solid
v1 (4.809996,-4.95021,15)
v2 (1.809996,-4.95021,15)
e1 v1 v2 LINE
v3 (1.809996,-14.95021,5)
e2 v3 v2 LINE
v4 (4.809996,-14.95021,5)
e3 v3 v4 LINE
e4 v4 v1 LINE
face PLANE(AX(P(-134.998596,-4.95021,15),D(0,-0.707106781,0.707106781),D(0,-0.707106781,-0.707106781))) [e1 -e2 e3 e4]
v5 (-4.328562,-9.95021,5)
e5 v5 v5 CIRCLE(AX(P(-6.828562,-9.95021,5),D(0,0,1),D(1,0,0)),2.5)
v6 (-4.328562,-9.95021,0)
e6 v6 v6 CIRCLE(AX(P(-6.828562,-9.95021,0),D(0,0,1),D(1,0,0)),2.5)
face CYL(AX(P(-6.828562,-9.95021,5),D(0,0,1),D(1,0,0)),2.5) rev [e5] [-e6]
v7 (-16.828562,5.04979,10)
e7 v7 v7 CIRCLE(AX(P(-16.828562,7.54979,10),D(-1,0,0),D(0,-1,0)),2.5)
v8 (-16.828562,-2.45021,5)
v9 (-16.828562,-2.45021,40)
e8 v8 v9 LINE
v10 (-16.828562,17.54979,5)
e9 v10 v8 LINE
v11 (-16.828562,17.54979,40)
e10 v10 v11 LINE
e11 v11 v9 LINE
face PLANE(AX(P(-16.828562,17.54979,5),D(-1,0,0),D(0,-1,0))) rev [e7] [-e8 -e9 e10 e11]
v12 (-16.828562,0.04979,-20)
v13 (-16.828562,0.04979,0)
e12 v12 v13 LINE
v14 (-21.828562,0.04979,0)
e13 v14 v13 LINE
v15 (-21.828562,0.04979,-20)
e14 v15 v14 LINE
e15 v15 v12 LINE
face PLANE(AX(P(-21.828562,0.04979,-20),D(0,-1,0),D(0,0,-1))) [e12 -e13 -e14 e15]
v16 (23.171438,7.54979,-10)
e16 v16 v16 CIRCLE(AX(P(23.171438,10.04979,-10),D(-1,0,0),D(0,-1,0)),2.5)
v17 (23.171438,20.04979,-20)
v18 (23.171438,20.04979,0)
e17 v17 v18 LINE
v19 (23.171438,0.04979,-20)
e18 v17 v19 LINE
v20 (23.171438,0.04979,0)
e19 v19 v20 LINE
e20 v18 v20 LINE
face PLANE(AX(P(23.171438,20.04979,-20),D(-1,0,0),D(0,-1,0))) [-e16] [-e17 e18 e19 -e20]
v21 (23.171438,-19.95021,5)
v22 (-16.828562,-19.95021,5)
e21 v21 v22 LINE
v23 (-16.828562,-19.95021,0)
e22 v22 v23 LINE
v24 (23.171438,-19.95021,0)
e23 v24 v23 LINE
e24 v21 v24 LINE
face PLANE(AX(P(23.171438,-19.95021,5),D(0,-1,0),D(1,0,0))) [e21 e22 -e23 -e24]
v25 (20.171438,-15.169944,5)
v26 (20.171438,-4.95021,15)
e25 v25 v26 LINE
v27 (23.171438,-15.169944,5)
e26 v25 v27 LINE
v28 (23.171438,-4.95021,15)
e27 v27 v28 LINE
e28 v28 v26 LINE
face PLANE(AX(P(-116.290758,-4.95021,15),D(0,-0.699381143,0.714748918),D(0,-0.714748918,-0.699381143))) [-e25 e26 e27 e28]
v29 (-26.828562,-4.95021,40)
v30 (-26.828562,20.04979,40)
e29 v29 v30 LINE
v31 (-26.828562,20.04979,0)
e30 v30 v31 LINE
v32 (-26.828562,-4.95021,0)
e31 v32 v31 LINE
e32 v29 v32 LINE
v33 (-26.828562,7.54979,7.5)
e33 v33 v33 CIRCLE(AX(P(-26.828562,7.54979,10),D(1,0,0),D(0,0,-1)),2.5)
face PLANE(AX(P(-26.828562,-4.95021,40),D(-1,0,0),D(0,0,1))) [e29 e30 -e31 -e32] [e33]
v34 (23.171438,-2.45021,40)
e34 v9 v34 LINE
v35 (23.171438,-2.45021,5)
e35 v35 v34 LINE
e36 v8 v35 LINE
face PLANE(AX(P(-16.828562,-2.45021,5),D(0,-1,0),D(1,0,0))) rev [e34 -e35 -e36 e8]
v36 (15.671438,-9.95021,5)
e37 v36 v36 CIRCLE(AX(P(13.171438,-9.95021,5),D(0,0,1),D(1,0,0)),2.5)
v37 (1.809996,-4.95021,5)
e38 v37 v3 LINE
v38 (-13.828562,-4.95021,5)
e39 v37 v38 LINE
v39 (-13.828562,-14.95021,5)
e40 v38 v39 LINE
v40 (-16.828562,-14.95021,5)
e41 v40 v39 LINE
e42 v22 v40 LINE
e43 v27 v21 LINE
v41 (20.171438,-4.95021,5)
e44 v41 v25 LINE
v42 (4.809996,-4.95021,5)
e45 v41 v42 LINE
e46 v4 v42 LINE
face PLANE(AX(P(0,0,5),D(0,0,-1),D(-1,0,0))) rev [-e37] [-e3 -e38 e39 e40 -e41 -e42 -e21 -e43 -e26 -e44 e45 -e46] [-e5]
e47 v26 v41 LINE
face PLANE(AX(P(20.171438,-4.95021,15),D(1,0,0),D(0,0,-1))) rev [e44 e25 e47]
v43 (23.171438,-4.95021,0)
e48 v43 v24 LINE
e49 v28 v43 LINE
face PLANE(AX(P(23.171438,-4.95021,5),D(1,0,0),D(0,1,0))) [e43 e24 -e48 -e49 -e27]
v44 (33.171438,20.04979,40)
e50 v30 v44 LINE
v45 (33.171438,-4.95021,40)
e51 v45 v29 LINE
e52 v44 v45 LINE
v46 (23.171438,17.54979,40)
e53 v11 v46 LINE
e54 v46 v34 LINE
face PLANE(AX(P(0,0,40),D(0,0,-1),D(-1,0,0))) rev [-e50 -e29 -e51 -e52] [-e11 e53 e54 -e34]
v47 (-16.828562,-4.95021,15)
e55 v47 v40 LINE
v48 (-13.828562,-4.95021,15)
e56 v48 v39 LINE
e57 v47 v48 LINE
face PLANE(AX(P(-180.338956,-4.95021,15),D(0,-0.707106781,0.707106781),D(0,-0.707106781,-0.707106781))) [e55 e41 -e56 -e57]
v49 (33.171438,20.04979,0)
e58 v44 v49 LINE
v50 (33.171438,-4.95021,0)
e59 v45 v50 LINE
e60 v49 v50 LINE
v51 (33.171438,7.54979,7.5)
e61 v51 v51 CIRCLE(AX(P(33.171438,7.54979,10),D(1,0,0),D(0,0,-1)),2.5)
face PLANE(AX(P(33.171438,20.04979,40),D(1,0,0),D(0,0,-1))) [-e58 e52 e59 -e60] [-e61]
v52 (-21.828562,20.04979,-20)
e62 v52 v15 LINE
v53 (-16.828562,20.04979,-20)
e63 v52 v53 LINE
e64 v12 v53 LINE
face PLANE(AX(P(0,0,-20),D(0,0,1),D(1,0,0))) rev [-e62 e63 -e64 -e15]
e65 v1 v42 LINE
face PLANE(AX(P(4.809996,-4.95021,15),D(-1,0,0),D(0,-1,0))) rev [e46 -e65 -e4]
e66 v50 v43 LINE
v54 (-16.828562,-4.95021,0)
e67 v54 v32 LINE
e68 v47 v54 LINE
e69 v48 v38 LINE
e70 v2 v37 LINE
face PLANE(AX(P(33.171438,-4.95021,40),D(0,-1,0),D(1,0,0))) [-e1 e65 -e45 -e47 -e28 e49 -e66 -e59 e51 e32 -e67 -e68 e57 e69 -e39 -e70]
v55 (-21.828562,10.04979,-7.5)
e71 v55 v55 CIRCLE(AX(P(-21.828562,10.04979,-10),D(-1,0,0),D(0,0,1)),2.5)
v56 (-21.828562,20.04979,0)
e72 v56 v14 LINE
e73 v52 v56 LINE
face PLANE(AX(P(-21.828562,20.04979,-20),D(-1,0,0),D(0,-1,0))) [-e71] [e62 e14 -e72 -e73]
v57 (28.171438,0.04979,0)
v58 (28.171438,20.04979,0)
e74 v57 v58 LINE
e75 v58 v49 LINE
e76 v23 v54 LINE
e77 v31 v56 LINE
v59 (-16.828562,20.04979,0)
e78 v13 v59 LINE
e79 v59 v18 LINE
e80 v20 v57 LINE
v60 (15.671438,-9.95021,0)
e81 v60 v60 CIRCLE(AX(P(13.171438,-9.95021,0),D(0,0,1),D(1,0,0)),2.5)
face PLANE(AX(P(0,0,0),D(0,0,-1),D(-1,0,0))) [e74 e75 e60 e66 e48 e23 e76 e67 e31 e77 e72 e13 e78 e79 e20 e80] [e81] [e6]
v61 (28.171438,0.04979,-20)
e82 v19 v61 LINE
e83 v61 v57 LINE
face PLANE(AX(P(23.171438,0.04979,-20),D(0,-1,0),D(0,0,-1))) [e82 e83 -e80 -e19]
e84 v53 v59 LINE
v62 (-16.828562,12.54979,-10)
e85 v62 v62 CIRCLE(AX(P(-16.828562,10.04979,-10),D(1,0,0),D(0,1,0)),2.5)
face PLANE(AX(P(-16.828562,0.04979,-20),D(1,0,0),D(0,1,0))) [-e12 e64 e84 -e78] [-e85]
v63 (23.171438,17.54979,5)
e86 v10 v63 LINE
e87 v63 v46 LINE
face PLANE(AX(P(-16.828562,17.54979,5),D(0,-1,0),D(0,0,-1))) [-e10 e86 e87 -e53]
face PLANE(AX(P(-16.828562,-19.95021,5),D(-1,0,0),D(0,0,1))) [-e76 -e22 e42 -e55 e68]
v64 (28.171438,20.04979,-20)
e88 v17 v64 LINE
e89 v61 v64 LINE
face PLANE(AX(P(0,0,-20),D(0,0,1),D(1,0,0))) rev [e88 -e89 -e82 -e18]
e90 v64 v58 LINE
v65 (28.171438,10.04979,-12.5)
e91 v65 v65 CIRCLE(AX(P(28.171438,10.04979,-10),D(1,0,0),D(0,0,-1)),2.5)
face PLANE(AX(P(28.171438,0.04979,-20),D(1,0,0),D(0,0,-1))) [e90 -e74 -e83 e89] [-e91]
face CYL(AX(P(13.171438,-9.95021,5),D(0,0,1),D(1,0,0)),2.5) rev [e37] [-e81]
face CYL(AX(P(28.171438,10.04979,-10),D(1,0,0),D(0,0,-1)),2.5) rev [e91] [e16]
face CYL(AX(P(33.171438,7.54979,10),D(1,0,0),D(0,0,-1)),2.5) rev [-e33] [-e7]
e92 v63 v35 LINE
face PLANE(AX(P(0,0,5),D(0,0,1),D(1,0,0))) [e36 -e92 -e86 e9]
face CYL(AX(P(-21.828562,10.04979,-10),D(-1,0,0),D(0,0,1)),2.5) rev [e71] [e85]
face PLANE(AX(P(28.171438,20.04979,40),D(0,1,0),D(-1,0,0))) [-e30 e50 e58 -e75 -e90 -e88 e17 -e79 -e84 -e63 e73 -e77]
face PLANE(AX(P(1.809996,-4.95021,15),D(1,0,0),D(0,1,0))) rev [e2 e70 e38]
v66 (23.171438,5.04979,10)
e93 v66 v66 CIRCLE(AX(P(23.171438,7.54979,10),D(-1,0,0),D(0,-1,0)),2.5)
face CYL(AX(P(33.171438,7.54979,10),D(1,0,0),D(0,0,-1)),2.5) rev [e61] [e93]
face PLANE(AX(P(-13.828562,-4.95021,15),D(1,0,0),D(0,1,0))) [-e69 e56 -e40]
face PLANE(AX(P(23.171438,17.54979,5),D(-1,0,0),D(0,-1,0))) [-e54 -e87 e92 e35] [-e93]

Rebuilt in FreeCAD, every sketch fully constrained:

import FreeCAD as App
import Part
import Sketcher
from FreeCAD import Vector
Q = App.Units.Quantity


def add_polygon(sketch, points):
    """Adds a closed chain of lines whose ends are joined by coincident constraints."""
    first, n = sketch.GeometryCount, len(points)
    for a, b in zip(points, points[1:] + points[:1]):
        sketch.addGeometry(Part.LineSegment(App.Vector(*a, 0), App.Vector(*b, 0)), False)
    for i in range(n):
        sketch.addConstraint(Sketcher.Constraint("Coincident", first + i, 2, first + (i + 1) % n, 1))

doc = App.newDocument("Part")
body = doc.addObject("PartDesign::Body", "Body")

sketch1 = body.newObject("Sketcher::SketchObject", "Sketch")
sketch1.AttachmentSupport = (doc.getObject("XY_Plane"), [""])
sketch1.MapMode = "FlatFace"
add_polygon(sketch1, [(-17, -5), (-17, -20), (23, -20), (23, -5)])
sketch1.addConstraint(Sketcher.Constraint("Vertical", 0))
sketch1.addConstraint(Sketcher.Constraint("Horizontal", 1))
sketch1.addConstraint(Sketcher.Constraint("Vertical", 2))
sketch1.addConstraint(Sketcher.Constraint("Horizontal", 3))
sketch1.addConstraint(Sketcher.Constraint("DistanceX", 1, 1, 1, 2, Q("40 mm")))
sketch1.addConstraint(Sketcher.Constraint("DistanceY", 0, 2, 0, 1, Q("15 mm")))
sketch1.addConstraint(Sketcher.Constraint("DistanceY", 0, 2, -1, 1, Q("19.95021 mm")))
sketch1.addConstraint(Sketcher.Constraint("DistanceX", 0, 2, -1, 1, Q("16.828562 mm")))
pad1 = body.newObject("PartDesign::Pad", "Pad")
pad1.Profile = sketch1
pad1.Length = 5

sketch2 = body.newObject("Sketcher::SketchObject", "Sketch001")
sketch2.AttachmentSupport = (doc.getObject("XY_Plane"), [""])
sketch2.MapMode = "FlatFace"
sketch2.AttachmentOffset = App.Placement(Vector(0, 0, 5), App.Rotation())
sketch2.addGeometry(Part.Circle(Vector(13.2, -10, 0), Vector(0, 0, 1), 2.5), False)
sketch2.addConstraint(Sketcher.Constraint("Diameter", 0, Q("5 mm")))
sketch2.addConstraint(Sketcher.Constraint("DistanceY", 0, 3, -1, 1, Q("9.95021 mm")))
sketch2.addConstraint(Sketcher.Constraint("DistanceX", -1, 1, 0, 3, Q("13.171438 mm")))
doc.recompute()
hole = body.newObject("PartDesign::Hole", "Hole")
hole.Profile = sketch2
hole.ThreadType = "None"
hole.Diameter = 5
hole.DepthType = "ThroughAll"

sketch3 = body.newObject("Sketcher::SketchObject", "Sketch002")
sketch3.AttachmentSupport = (doc.getObject("XY_Plane"), [""])
sketch3.MapMode = "FlatFace"
sketch3.AttachmentOffset = App.Placement(Vector(0, 0, 5), App.Rotation())
sketch3.addGeometry(Part.Circle(Vector(-6.8, -10, 0), Vector(0, 0, 1), 2.5), False)
sketch3.addConstraint(Sketcher.Constraint("Diameter", 0, Q("5 mm")))
sketch3.addConstraint(Sketcher.Constraint("DistanceY", 0, 3, -1, 1, Q("9.95021 mm")))
sketch3.addConstraint(Sketcher.Constraint("DistanceX", 0, 3, -1, 1, Q("6.828562 mm")))
doc.recompute()
hole2 = body.newObject("PartDesign::Hole", "Hole001")
hole2.Profile = sketch3
hole2.ThreadType = "None"
hole2.Diameter = 5
hole2.DepthType = "ThroughAll"

sketch4 = body.newObject("Sketcher::SketchObject", "Sketch003")
sketch4.AttachmentSupport = (doc.getObject("XY_Plane"), [""])
sketch4.MapMode = "FlatFace"
add_polygon(sketch4, [(33, 20), (-27, 20), (-27, -5), (33, -5)])
sketch4.addConstraint(Sketcher.Constraint("Horizontal", 0))
sketch4.addConstraint(Sketcher.Constraint("Vertical", 1))
sketch4.addConstraint(Sketcher.Constraint("Horizontal", 2))
sketch4.addConstraint(Sketcher.Constraint("Vertical", 3))
sketch4.addConstraint(Sketcher.Constraint("DistanceX", 0, 2, 0, 1, Q("60 mm")))
sketch4.addConstraint(Sketcher.Constraint("DistanceY", 1, 2, 1, 1, Q("25 mm")))
sketch4.addConstraint(Sketcher.Constraint("DistanceY", -1, 1, 0, 2, Q("20.04979 mm")))
sketch4.addConstraint(Sketcher.Constraint("DistanceX", 0, 2, -1, 1, Q("26.828562 mm")))
pad2 = body.newObject("PartDesign::Pad", "Pad001")
pad2.Profile = sketch4
pad2.Length = 40

sketch5 = body.newObject("Sketcher::SketchObject", "Sketch004")
sketch5.AttachmentSupport = (doc.getObject("XY_Plane"), [""])
sketch5.MapMode = "FlatFace"
add_polygon(sketch5, [(23, 20), (23, 0), (28, 0), (28, 20)])
sketch5.addConstraint(Sketcher.Constraint("Vertical", 0))
sketch5.addConstraint(Sketcher.Constraint("Horizontal", 1))
sketch5.addConstraint(Sketcher.Constraint("Vertical", 2))
sketch5.addConstraint(Sketcher.Constraint("Horizontal", 3))
sketch5.addConstraint(Sketcher.Constraint("DistanceX", 1, 1, 1, 2, Q("5 mm")))
sketch5.addConstraint(Sketcher.Constraint("DistanceY", 0, 2, 0, 1, Q("20 mm")))
sketch5.addConstraint(Sketcher.Constraint("DistanceY", -1, 1, 0, 2, Q("0.04979 mm")))
sketch5.addConstraint(Sketcher.Constraint("DistanceX", -1, 1, 0, 2, Q("23.171438 mm")))
pad3 = body.newObject("PartDesign::Pad", "Pad002")
pad3.Profile = sketch5
pad3.Length = 20
pad3.Reversed = True

sketch6 = body.newObject("Sketcher::SketchObject", "Sketch005")
sketch6.AttachmentSupport = (doc.getObject("XY_Plane"), [""])
sketch6.MapMode = "FlatFace"
add_polygon(sketch6, [(-22, 20), (-22, 0), (-17, 0), (-17, 20)])
sketch6.addConstraint(Sketcher.Constraint("Vertical", 0))
sketch6.addConstraint(Sketcher.Constraint("Horizontal", 1))
sketch6.addConstraint(Sketcher.Constraint("Vertical", 2))
sketch6.addConstraint(Sketcher.Constraint("Horizontal", 3))
sketch6.addConstraint(Sketcher.Constraint("DistanceX", 1, 1, 1, 2, Q("5 mm")))
sketch6.addConstraint(Sketcher.Constraint("DistanceY", 0, 2, 0, 1, Q("20 mm")))
sketch6.addConstraint(Sketcher.Constraint("DistanceY", -1, 1, 0, 2, Q("0.04979 mm")))
sketch6.addConstraint(Sketcher.Constraint("DistanceX", 0, 2, -1, 1, Q("21.828562 mm")))
pad4 = body.newObject("PartDesign::Pad", "Pad003")
pad4.Profile = sketch6
pad4.Length = 20
pad4.Reversed = True

sketch7 = body.newObject("Sketcher::SketchObject", "Sketch006")
sketch7.AttachmentSupport = (doc.getObject("YZ_Plane"), [""])
sketch7.MapMode = "FlatFace"
sketch7.AttachmentOffset = App.Placement(Vector(0, 0, 28.171438), App.Rotation())
sketch7.addGeometry(Part.Circle(Vector(10, -10, 0), Vector(0, 0, 1), 2.5), False)
sketch7.addConstraint(Sketcher.Constraint("Diameter", 0, Q("5 mm")))
sketch7.addConstraint(Sketcher.Constraint("DistanceY", 0, 3, -1, 1, Q("10 mm")))
sketch7.addConstraint(Sketcher.Constraint("DistanceX", -1, 1, 0, 3, Q("10.04979 mm")))
doc.recompute()
hole3 = body.newObject("PartDesign::Hole", "Hole002")
hole3.Profile = sketch7
hole3.ThreadType = "None"
hole3.Diameter = 5
hole3.DepthType = "Dimension"
hole3.Depth = 5
hole3.DrillPoint = "Flat"

sketch8 = body.newObject("Sketcher::SketchObject", "Sketch007")
sketch8.AttachmentSupport = (doc.getObject("YZ_Plane"), [""])
sketch8.MapMode = "FlatFace"
sketch8.AttachmentOffset = App.Placement(Vector(0, 0, -21.828562), App.Rotation())
sketch8.addGeometry(Part.Circle(Vector(10, -10, 0), Vector(0, 0, 1), 2.5), False)
sketch8.addConstraint(Sketcher.Constraint("Diameter", 0, Q("5 mm")))
sketch8.addConstraint(Sketcher.Constraint("DistanceY", 0, 3, -1, 1, Q("10 mm")))
sketch8.addConstraint(Sketcher.Constraint("DistanceX", -1, 1, 0, 3, Q("10.04979 mm")))
doc.recompute()
hole4 = body.newObject("PartDesign::Hole", "Hole003")
hole4.Profile = sketch8
hole4.ThreadType = "None"
hole4.Diameter = 5
hole4.DepthType = "Dimension"
hole4.Depth = 5
hole4.DrillPoint = "Flat"
hole4.Reversed = True

sketch9 = body.newObject("Sketcher::SketchObject", "Sketch008")
sketch9.AttachmentSupport = (doc.getObject("XY_Plane"), [""])
sketch9.MapMode = "FlatFace"
sketch9.AttachmentOffset = App.Placement(Vector(0, 0, 40), App.Rotation())
add_polygon(sketch9, [(-17, 18), (-17, -2), (23, -2), (23, 18)])
sketch9.addConstraint(Sketcher.Constraint("Vertical", 0))
sketch9.addConstraint(Sketcher.Constraint("Horizontal", 1))
sketch9.addConstraint(Sketcher.Constraint("Vertical", 2))
sketch9.addConstraint(Sketcher.Constraint("Horizontal", 3))
sketch9.addConstraint(Sketcher.Constraint("DistanceX", 1, 1, 1, 2, Q("40 mm")))
sketch9.addConstraint(Sketcher.Constraint("DistanceY", 0, 2, 0, 1, Q("20 mm")))
sketch9.addConstraint(Sketcher.Constraint("DistanceY", 0, 2, -1, 1, Q("2.45021 mm")))
sketch9.addConstraint(Sketcher.Constraint("DistanceX", 0, 2, -1, 1, Q("16.828562 mm")))
pocket1 = body.newObject("PartDesign::Pocket", "Pocket")
pocket1.Profile = sketch9
pocket1.Length = 35

sketch10 = body.newObject("Sketcher::SketchObject", "Sketch009")
sketch10.AttachmentSupport = (doc.getObject("YZ_Plane"), [""])
sketch10.MapMode = "FlatFace"
sketch10.AttachmentOffset = App.Placement(Vector(0, 0, 33.171438), App.Rotation())
sketch10.addGeometry(Part.Circle(Vector(7.5, 10, 0), Vector(0, 0, 1), 2.5), False)
sketch10.addConstraint(Sketcher.Constraint("Diameter", 0, Q("5 mm")))
sketch10.addConstraint(Sketcher.Constraint("DistanceY", -1, 1, 0, 3, Q("10 mm")))
sketch10.addConstraint(Sketcher.Constraint("DistanceX", -1, 1, 0, 3, Q("7.54979 mm")))
doc.recompute()
hole5 = body.newObject("PartDesign::Hole", "Hole004")
hole5.Profile = sketch10
hole5.ThreadType = "None"
hole5.Diameter = 5
hole5.DepthType = "ThroughAll"

sketch11 = body.newObject("Sketcher::SketchObject", "Sketch010")
sketch11.AttachmentSupport = (doc.getObject("XY_Plane"), [""])
sketch11.MapMode = "FlatFace"
sketch11.AttachmentOffset = App.Placement(Vector(0, 0, 5), App.Rotation())
add_polygon(sketch11, [(-16.8, -5), (-16.8, -15), (-13.8, -15), (-13.8, -5)])
sketch11.addConstraint(Sketcher.Constraint("Vertical", 0))
sketch11.addConstraint(Sketcher.Constraint("Horizontal", 1))
sketch11.addConstraint(Sketcher.Constraint("Vertical", 2))
sketch11.addConstraint(Sketcher.Constraint("Horizontal", 3))
sketch11.addConstraint(Sketcher.Constraint("DistanceX", 1, 1, 1, 2, Q("3 mm")))
sketch11.addConstraint(Sketcher.Constraint("DistanceY", 0, 2, 0, 1, Q("10 mm")))
sketch11.addConstraint(Sketcher.Constraint("DistanceY", 0, 2, -1, 1, Q("14.95021 mm")))
sketch11.addConstraint(Sketcher.Constraint("DistanceX", 0, 2, -1, 1, Q("16.828562 mm")))
pad5 = body.newObject("PartDesign::Pad", "Pad004")
pad5.Profile = sketch11
pad5.Length = 10

sketch12 = body.newObject("Sketcher::SketchObject", "Sketch011")
sketch12.AttachmentSupport = (doc.getObject("XY_Plane"), [""])
sketch12.MapMode = "FlatFace"
sketch12.AttachmentOffset = App.Placement(Vector(0, 0, 5), App.Rotation())
add_polygon(sketch12, [(-16.8, -5), (-16.8, -15), (-13.8, -15), (-13.8, -5)])
add_polygon(sketch12, [(20.2, -5), (20.2, -15.2), (23.2, -15.2), (23.2, -5)])
add_polygon(sketch12, [(1.8, -5), (1.8, -15), (4.8, -15), (4.8, -5)])
sketch12.addConstraint(Sketcher.Constraint("Vertical", 0))
sketch12.addConstraint(Sketcher.Constraint("Horizontal", 1))
sketch12.addConstraint(Sketcher.Constraint("Vertical", 2))
sketch12.addConstraint(Sketcher.Constraint("Horizontal", 3))
sketch12.addConstraint(Sketcher.Constraint("Vertical", 4))
sketch12.addConstraint(Sketcher.Constraint("Horizontal", 5))
sketch12.addConstraint(Sketcher.Constraint("Vertical", 6))
sketch12.addConstraint(Sketcher.Constraint("Horizontal", 7))
sketch12.addConstraint(Sketcher.Constraint("Vertical", 8))
sketch12.addConstraint(Sketcher.Constraint("Horizontal", 9))
sketch12.addConstraint(Sketcher.Constraint("Vertical", 10))
sketch12.addConstraint(Sketcher.Constraint("Horizontal", 11))
sketch12.addConstraint(Sketcher.Constraint("Horizontal", 3, 2, 6, 2))
sketch12.addConstraint(Sketcher.Constraint("Horizontal", 1, 2, 8, 2))
sketch12.addConstraint(Sketcher.Constraint("Horizontal", 7, 2, 10, 2))
sketch12.addConstraint(Sketcher.Constraint("Equal", 3, 5))
sketch12.addConstraint(Sketcher.Constraint("Equal", 7, 9))
sketch12.addConstraint(Sketcher.Constraint("DistanceX", 1, 1, 1, 2, Q("3 mm")))
sketch12.addConstraint(Sketcher.Constraint("DistanceY", 0, 2, 0, 1, Q("10 mm")))
sketch12.addConstraint(Sketcher.Constraint("DistanceX", 1, 2, 4, 2, Q("34 mm")))
sketch12.addConstraint(Sketcher.Constraint("DistanceY", 4, 2, 4, 1, Q("10.219734 mm")))
sketch12.addConstraint(Sketcher.Constraint("DistanceY", 0, 2, -1, 1, Q("14.95021 mm")))
sketch12.addConstraint(Sketcher.Constraint("DistanceX", 1, 2, 8, 2, Q("15.638558 mm")))
sketch12.addConstraint(Sketcher.Constraint("DistanceX", 0, 2, -1, 1, Q("16.828562 mm")))
pad6 = body.newObject("PartDesign::Pad", "Pad005")
pad6.Profile = sketch12
pad6.Length = 10

sketch13 = body.newObject("Sketcher::SketchObject", "Sketch012")
sketch13.AttachmentSupport = (doc.getObject("YZ_Plane"), [""])
sketch13.MapMode = "FlatFace"
sketch13.AttachmentOffset = App.Placement(Vector(0, 0, -16.828562), App.Rotation())
add_polygon(sketch13, [(-15, 15), (-5, 15), (-15, 5)])
sketch13.addConstraint(Sketcher.Constraint("Horizontal", 0))
sketch13.addConstraint(Sketcher.Constraint("Vertical", 2))
sketch13.addConstraint(Sketcher.Constraint("Equal", 0, 2))
sketch13.addConstraint(Sketcher.Constraint("DistanceX", 0, 1, 0, 2, Q("10 mm")))
sketch13.addConstraint(Sketcher.Constraint("DistanceY", -1, 1, 0, 2, Q("15 mm")))
sketch13.addConstraint(Sketcher.Constraint("DistanceX", 0, 2, -1, 1, Q("4.95021 mm")))
pocket2 = body.newObject("PartDesign::Pocket", "Pocket001")
pocket2.Profile = sketch13
pocket2.Type = "TwoLengths"
pocket2.Length = 11
pocket2.Length2 = 3

sketch14 = body.newObject("Sketcher::SketchObject", "Sketch013")
sketch14.AttachmentSupport = (doc.getObject("YZ_Plane"), [""])
sketch14.MapMode = "FlatFace"
sketch14.AttachmentOffset = App.Placement(Vector(0, 0, 1.809996), App.Rotation())
add_polygon(sketch14, [(-15, 15), (-5, 15), (-15, 5)])
sketch14.addConstraint(Sketcher.Constraint("Horizontal", 0))
sketch14.addConstraint(Sketcher.Constraint("Vertical", 2))
sketch14.addConstraint(Sketcher.Constraint("Equal", 0, 2))
sketch14.addConstraint(Sketcher.Constraint("DistanceX", 0, 1, 0, 2, Q("10 mm")))
sketch14.addConstraint(Sketcher.Constraint("DistanceY", -1, 1, 0, 2, Q("15 mm")))
sketch14.addConstraint(Sketcher.Constraint("DistanceX", 0, 2, -1, 1, Q("4.95021 mm")))
pocket3 = body.newObject("PartDesign::Pocket", "Pocket002")
pocket3.Profile = sketch14
pocket3.Type = "TwoLengths"
pocket3.Length = 29.638558
pocket3.Length2 = 3

sketch15 = body.newObject("Sketcher::SketchObject", "Sketch014")
sketch15.AttachmentSupport = (doc.getObject("YZ_Plane"), [""])
sketch15.MapMode = "FlatFace"
sketch15.AttachmentOffset = App.Placement(Vector(0, 0, 20.171438), App.Rotation())
add_polygon(sketch15, [(-15, 15), (-5, 15), (-15, 5)])
sketch15.addConstraint(Sketcher.Constraint("Horizontal", 0))
sketch15.addConstraint(Sketcher.Constraint("Vertical", 2))
sketch15.addConstraint(Sketcher.Constraint("DistanceY", 2, 1, 2, 2, Q("10 mm")))
sketch15.addConstraint(Sketcher.Constraint("DistanceY", -1, 1, 0, 2, Q("15 mm")))
sketch15.addConstraint(Sketcher.Constraint("DistanceX", 0, 1, 0, 2, Q("10.219734 mm")))
sketch15.addConstraint(Sketcher.Constraint("DistanceX", 0, 2, -1, 1, Q("4.95021 mm")))
pocket4 = body.newObject("PartDesign::Pocket", "Pocket003")
pocket4.Profile = sketch15
pocket4.Type = "ThroughAll"
pocket4.Midplane = True

doc.recompute()
